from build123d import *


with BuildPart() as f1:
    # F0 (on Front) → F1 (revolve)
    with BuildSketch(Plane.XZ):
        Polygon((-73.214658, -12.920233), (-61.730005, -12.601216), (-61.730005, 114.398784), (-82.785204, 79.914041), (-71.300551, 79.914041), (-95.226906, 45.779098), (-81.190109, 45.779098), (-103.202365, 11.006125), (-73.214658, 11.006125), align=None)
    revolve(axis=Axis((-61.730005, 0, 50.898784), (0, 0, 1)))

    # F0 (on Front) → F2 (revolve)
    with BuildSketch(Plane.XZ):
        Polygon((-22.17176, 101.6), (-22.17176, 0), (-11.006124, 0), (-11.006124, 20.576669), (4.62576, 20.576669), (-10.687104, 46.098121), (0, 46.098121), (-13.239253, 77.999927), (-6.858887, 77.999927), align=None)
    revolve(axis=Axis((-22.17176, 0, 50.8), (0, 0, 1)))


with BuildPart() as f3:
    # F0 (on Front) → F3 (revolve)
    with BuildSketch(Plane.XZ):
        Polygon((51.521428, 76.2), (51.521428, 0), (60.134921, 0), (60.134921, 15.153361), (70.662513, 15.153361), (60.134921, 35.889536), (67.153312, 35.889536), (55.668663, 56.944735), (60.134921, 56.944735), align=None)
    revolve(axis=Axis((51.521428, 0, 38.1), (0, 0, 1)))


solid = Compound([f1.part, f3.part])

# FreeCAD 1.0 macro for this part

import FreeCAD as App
import Part
import Sketcher
Q = App.Units.Quantity


def add_polygon(sketch, points):
    """Adds a closed chain of lines whose ends are joined by coincident constraints."""
    first, n = sketch.GeometryCount, len(points)
    for a, b in zip(points, points[1:] + points[:1]):
        sketch.addGeometry(Part.LineSegment(App.Vector(*a, 0), App.Vector(*b, 0)), False)
    for i in range(n):
        sketch.addConstraint(Sketcher.Constraint("Coincident", first + i, 2, first + (i + 1) % n, 1))

doc = App.newDocument("Part")
body = doc.addObject("PartDesign::Body", "Body")

# Sketch on XZ plane
sketch1 = body.newObject("Sketcher::SketchObject", "Sketch")
sketch1.AttachmentSupport = (doc.getObject("XZ_Plane"), [""])
sketch1.MapMode = "FlatFace"
add_polygon(sketch1, [(-73.214658, -12.920233), (-61.730005, -12.601216), (-61.730005, 114.398784), (-82.785204, 79.914041), (-71.300551, 79.914041), (-95.226906, 45.779098), (-81.190109, 45.779098), (-103.202365, 11.006125), (-73.214658, 11.006125)])  # lines 0-8
sketch1.addGeometry(Part.LineSegment(App.Vector(-61.730005, -12.920233, 0), App.Vector(-61.730005, 114.398784, 0)), True)  # axis
sketch1.addConstraint([
    Sketcher.Constraint("Vertical", 1),
    Sketcher.Constraint("Horizontal", 3),
    Sketcher.Constraint("Horizontal", 5),
    Sketcher.Constraint("Horizontal", 7),
    Sketcher.Constraint("Vertical", 8),
    Sketcher.Constraint("Vertical", 9),
    Sketcher.Constraint("Coincident", 9, 2, 1, 2),
    Sketcher.Constraint("Horizontal", 8, 2, 9, 1),
    Sketcher.Constraint("DistanceY", 1, 1, 1, 2, Q("5 in")),
    Sketcher.Constraint("DistanceY", 8, 2, 8, 1, 23.926358),
    Sketcher.Constraint("DistanceX", 2, 2, 1, 2, 21.055199),
    Sketcher.Constraint("DistanceX", 4, 2, 0, 2, 33.496901),
    Sketcher.Constraint("Distance", 2, 40.404442),
    Sketcher.Constraint("DistanceX", 3, 1, 3, 2, 11.484653),
    Sketcher.Constraint("DistanceX", 5, 1, 5, 2, 14.036797),
    Sketcher.Constraint("DistanceX", 7, 1, 7, 2, 29.987707),
    Sketcher.Constraint("DistanceY", 9, 1, 9, 2, 127.319017),
    Sketcher.Constraint("DistanceY", -1, 1, 2, 2, 79.914041),
    Sketcher.Constraint("DistanceX", 3, 2, -1, 1, 71.300551),
    Sketcher.Constraint("DistanceX", 7, 2, -1, 1, 73.214658),
    Sketcher.Constraint("DistanceY", 8, 2, 5, 2, 58.699331),
])
revolution = body.newObject("PartDesign::Revolution", "Revolution")
revolution.Profile = sketch1
revolution.ReferenceAxis = (sketch1, ["Axis0"])
revolution.Angle = 360

# Sketch on XZ plane
sketch2 = body.newObject("Sketcher::SketchObject", "Sketch001")
sketch2.AttachmentSupport = (doc.getObject("XZ_Plane"), [""])
sketch2.MapMode = "FlatFace"
add_polygon(sketch2, [(-22.17176, 101.6), (-22.17176, 0), (-11.006124, 0), (-11.006124, 20.576669), (4.62576, 20.576669), (-10.687104, 46.098121), (0, 46.098121), (-13.239253, 77.999927), (-6.858887, 77.999927)])  # lines 0-8
sketch2.addGeometry(Part.LineSegment(App.Vector(-22.17176, 0, 0), App.Vector(-22.17176, 101.6, 0)), True)  # axis
sketch2.addConstraint([
    Sketcher.Constraint("Vertical", 0),
    Sketcher.Constraint("Horizontal", 1),
    Sketcher.Constraint("Vertical", 2),
    Sketcher.Constraint("Horizontal", 3),
    Sketcher.Constraint("Horizontal", 5),
    Sketcher.Constraint("Horizontal", 7),
    Sketcher.Constraint("Vertical", 9),
    Sketcher.Constraint("Coincident", 9, 1, 0, 2),
    Sketcher.Constraint("PointOnObject", 0, 2, -1),
    Sketcher.Constraint("PointOnObject", 5, 2, -2),
    Sketcher.Constraint("Equal", 0, 9),
    Sketcher.Constraint("DistanceY", 0, 2, 0, 1, Q("4 in")),
    Sketcher.Constraint("DistanceY", 2, 1, 2, 2, 20.576669),
    Sketcher.Constraint("Distance", 4, 29.762868),
    Sketcher.Constraint("DistanceX", 1, 1, 1, 2, 11.165636),
    Sketcher.Constraint("DistanceX", 3, 1, 3, 2, 15.631884),
    Sketcher.Constraint("DistanceX", 5, 1, 5, 2, 10.687104),
    Sketcher.Constraint("DistanceX", 7, 1, 7, 2, 6.380366),
    Sketcher.Constraint("DistanceX", 0, 2, -1, 1, 22.17176),
    Sketcher.Constraint("DistanceX", 6, 2, 4, 2, 2.552149),
    Sketcher.Constraint("DistanceY", 2, 2, 6, 2, 57.423258),
])
revolution2 = body.newObject("PartDesign::Revolution", "Revolution001")
revolution2.Profile = sketch2
revolution2.ReferenceAxis = (sketch2, ["Axis0"])
revolution2.Angle = 360
body2 = doc.addObject("PartDesign::Body", "Body001")

# Sketch on XZ plane
sketch3 = body2.newObject("Sketcher::SketchObject", "Sketch002")
sketch3.AttachmentSupport = (doc.getObject("XZ_Plane001"), [""])
sketch3.MapMode = "FlatFace"
add_polygon(sketch3, [(51.521428, 76.2), (51.521428, 0), (60.134921, 0), (60.134921, 15.153361), (70.662513, 15.153361), (60.134921, 35.889536), (67.153312, 35.889536), (55.668663, 56.944735), (60.134921, 56.944735)])  # lines 0-8
sketch3.addGeometry(Part.LineSegment(App.Vector(51.521428, 0, 0), App.Vector(51.521428, 76.2, 0)), True)  # axis
sketch3.addConstraint([
    Sketcher.Constraint("Vertical", 0),
    Sketcher.Constraint("Horizontal", 1),
    Sketcher.Constraint("Vertical", 2),
    Sketcher.Constraint("Horizontal", 3),
    Sketcher.Constraint("Horizontal", 5),
    Sketcher.Constraint("Horizontal", 7),
    Sketcher.Constraint("Vertical", 9),
    Sketcher.Constraint("Coincident", 9, 1, 0, 2),
    Sketcher.Constraint("PointOnObject", 0, 2, -1),
    Sketcher.Constraint("Vertical", 2, 2, 4, 2),
    Sketcher.Constraint("Vertical", 4, 2, 7, 2),
    Sketcher.Constraint("Equal", 0, 9),
    Sketcher.Constraint("DistanceY", 0, 2, 0, 1, Q("3 in")),
    Sketcher.Constraint("DistanceX", 5, 1, 5, 2, 7.018391),
    Sketcher.Constraint("DistanceY", 2, 1, 2, 2, 15.153361),
    Sketcher.Constraint("DistanceX", 5, 2, 3, 2, 3.509201),
    Sketcher.Constraint("DistanceY", 4, 2, 6, 2, 21.055199),
    Sketcher.Constraint("Distance", 4, 23.255519),
    Sketcher.Constraint("DistanceX", 1, 1, 1, 2, 8.613493),
    Sketcher.Constraint("DistanceX", 7, 1, 7, 2, 4.466258),
    Sketcher.Constraint("DistanceX", -1, 1, 1, 2, 60.134921),
])
revolution3 = body2.newObject("PartDesign::Revolution", "Revolution002")
revolution3.Profile = sketch3
revolution3.ReferenceAxis = (sketch3, ["Axis0"])
revolution3.Angle = 360

doc.recompute()
